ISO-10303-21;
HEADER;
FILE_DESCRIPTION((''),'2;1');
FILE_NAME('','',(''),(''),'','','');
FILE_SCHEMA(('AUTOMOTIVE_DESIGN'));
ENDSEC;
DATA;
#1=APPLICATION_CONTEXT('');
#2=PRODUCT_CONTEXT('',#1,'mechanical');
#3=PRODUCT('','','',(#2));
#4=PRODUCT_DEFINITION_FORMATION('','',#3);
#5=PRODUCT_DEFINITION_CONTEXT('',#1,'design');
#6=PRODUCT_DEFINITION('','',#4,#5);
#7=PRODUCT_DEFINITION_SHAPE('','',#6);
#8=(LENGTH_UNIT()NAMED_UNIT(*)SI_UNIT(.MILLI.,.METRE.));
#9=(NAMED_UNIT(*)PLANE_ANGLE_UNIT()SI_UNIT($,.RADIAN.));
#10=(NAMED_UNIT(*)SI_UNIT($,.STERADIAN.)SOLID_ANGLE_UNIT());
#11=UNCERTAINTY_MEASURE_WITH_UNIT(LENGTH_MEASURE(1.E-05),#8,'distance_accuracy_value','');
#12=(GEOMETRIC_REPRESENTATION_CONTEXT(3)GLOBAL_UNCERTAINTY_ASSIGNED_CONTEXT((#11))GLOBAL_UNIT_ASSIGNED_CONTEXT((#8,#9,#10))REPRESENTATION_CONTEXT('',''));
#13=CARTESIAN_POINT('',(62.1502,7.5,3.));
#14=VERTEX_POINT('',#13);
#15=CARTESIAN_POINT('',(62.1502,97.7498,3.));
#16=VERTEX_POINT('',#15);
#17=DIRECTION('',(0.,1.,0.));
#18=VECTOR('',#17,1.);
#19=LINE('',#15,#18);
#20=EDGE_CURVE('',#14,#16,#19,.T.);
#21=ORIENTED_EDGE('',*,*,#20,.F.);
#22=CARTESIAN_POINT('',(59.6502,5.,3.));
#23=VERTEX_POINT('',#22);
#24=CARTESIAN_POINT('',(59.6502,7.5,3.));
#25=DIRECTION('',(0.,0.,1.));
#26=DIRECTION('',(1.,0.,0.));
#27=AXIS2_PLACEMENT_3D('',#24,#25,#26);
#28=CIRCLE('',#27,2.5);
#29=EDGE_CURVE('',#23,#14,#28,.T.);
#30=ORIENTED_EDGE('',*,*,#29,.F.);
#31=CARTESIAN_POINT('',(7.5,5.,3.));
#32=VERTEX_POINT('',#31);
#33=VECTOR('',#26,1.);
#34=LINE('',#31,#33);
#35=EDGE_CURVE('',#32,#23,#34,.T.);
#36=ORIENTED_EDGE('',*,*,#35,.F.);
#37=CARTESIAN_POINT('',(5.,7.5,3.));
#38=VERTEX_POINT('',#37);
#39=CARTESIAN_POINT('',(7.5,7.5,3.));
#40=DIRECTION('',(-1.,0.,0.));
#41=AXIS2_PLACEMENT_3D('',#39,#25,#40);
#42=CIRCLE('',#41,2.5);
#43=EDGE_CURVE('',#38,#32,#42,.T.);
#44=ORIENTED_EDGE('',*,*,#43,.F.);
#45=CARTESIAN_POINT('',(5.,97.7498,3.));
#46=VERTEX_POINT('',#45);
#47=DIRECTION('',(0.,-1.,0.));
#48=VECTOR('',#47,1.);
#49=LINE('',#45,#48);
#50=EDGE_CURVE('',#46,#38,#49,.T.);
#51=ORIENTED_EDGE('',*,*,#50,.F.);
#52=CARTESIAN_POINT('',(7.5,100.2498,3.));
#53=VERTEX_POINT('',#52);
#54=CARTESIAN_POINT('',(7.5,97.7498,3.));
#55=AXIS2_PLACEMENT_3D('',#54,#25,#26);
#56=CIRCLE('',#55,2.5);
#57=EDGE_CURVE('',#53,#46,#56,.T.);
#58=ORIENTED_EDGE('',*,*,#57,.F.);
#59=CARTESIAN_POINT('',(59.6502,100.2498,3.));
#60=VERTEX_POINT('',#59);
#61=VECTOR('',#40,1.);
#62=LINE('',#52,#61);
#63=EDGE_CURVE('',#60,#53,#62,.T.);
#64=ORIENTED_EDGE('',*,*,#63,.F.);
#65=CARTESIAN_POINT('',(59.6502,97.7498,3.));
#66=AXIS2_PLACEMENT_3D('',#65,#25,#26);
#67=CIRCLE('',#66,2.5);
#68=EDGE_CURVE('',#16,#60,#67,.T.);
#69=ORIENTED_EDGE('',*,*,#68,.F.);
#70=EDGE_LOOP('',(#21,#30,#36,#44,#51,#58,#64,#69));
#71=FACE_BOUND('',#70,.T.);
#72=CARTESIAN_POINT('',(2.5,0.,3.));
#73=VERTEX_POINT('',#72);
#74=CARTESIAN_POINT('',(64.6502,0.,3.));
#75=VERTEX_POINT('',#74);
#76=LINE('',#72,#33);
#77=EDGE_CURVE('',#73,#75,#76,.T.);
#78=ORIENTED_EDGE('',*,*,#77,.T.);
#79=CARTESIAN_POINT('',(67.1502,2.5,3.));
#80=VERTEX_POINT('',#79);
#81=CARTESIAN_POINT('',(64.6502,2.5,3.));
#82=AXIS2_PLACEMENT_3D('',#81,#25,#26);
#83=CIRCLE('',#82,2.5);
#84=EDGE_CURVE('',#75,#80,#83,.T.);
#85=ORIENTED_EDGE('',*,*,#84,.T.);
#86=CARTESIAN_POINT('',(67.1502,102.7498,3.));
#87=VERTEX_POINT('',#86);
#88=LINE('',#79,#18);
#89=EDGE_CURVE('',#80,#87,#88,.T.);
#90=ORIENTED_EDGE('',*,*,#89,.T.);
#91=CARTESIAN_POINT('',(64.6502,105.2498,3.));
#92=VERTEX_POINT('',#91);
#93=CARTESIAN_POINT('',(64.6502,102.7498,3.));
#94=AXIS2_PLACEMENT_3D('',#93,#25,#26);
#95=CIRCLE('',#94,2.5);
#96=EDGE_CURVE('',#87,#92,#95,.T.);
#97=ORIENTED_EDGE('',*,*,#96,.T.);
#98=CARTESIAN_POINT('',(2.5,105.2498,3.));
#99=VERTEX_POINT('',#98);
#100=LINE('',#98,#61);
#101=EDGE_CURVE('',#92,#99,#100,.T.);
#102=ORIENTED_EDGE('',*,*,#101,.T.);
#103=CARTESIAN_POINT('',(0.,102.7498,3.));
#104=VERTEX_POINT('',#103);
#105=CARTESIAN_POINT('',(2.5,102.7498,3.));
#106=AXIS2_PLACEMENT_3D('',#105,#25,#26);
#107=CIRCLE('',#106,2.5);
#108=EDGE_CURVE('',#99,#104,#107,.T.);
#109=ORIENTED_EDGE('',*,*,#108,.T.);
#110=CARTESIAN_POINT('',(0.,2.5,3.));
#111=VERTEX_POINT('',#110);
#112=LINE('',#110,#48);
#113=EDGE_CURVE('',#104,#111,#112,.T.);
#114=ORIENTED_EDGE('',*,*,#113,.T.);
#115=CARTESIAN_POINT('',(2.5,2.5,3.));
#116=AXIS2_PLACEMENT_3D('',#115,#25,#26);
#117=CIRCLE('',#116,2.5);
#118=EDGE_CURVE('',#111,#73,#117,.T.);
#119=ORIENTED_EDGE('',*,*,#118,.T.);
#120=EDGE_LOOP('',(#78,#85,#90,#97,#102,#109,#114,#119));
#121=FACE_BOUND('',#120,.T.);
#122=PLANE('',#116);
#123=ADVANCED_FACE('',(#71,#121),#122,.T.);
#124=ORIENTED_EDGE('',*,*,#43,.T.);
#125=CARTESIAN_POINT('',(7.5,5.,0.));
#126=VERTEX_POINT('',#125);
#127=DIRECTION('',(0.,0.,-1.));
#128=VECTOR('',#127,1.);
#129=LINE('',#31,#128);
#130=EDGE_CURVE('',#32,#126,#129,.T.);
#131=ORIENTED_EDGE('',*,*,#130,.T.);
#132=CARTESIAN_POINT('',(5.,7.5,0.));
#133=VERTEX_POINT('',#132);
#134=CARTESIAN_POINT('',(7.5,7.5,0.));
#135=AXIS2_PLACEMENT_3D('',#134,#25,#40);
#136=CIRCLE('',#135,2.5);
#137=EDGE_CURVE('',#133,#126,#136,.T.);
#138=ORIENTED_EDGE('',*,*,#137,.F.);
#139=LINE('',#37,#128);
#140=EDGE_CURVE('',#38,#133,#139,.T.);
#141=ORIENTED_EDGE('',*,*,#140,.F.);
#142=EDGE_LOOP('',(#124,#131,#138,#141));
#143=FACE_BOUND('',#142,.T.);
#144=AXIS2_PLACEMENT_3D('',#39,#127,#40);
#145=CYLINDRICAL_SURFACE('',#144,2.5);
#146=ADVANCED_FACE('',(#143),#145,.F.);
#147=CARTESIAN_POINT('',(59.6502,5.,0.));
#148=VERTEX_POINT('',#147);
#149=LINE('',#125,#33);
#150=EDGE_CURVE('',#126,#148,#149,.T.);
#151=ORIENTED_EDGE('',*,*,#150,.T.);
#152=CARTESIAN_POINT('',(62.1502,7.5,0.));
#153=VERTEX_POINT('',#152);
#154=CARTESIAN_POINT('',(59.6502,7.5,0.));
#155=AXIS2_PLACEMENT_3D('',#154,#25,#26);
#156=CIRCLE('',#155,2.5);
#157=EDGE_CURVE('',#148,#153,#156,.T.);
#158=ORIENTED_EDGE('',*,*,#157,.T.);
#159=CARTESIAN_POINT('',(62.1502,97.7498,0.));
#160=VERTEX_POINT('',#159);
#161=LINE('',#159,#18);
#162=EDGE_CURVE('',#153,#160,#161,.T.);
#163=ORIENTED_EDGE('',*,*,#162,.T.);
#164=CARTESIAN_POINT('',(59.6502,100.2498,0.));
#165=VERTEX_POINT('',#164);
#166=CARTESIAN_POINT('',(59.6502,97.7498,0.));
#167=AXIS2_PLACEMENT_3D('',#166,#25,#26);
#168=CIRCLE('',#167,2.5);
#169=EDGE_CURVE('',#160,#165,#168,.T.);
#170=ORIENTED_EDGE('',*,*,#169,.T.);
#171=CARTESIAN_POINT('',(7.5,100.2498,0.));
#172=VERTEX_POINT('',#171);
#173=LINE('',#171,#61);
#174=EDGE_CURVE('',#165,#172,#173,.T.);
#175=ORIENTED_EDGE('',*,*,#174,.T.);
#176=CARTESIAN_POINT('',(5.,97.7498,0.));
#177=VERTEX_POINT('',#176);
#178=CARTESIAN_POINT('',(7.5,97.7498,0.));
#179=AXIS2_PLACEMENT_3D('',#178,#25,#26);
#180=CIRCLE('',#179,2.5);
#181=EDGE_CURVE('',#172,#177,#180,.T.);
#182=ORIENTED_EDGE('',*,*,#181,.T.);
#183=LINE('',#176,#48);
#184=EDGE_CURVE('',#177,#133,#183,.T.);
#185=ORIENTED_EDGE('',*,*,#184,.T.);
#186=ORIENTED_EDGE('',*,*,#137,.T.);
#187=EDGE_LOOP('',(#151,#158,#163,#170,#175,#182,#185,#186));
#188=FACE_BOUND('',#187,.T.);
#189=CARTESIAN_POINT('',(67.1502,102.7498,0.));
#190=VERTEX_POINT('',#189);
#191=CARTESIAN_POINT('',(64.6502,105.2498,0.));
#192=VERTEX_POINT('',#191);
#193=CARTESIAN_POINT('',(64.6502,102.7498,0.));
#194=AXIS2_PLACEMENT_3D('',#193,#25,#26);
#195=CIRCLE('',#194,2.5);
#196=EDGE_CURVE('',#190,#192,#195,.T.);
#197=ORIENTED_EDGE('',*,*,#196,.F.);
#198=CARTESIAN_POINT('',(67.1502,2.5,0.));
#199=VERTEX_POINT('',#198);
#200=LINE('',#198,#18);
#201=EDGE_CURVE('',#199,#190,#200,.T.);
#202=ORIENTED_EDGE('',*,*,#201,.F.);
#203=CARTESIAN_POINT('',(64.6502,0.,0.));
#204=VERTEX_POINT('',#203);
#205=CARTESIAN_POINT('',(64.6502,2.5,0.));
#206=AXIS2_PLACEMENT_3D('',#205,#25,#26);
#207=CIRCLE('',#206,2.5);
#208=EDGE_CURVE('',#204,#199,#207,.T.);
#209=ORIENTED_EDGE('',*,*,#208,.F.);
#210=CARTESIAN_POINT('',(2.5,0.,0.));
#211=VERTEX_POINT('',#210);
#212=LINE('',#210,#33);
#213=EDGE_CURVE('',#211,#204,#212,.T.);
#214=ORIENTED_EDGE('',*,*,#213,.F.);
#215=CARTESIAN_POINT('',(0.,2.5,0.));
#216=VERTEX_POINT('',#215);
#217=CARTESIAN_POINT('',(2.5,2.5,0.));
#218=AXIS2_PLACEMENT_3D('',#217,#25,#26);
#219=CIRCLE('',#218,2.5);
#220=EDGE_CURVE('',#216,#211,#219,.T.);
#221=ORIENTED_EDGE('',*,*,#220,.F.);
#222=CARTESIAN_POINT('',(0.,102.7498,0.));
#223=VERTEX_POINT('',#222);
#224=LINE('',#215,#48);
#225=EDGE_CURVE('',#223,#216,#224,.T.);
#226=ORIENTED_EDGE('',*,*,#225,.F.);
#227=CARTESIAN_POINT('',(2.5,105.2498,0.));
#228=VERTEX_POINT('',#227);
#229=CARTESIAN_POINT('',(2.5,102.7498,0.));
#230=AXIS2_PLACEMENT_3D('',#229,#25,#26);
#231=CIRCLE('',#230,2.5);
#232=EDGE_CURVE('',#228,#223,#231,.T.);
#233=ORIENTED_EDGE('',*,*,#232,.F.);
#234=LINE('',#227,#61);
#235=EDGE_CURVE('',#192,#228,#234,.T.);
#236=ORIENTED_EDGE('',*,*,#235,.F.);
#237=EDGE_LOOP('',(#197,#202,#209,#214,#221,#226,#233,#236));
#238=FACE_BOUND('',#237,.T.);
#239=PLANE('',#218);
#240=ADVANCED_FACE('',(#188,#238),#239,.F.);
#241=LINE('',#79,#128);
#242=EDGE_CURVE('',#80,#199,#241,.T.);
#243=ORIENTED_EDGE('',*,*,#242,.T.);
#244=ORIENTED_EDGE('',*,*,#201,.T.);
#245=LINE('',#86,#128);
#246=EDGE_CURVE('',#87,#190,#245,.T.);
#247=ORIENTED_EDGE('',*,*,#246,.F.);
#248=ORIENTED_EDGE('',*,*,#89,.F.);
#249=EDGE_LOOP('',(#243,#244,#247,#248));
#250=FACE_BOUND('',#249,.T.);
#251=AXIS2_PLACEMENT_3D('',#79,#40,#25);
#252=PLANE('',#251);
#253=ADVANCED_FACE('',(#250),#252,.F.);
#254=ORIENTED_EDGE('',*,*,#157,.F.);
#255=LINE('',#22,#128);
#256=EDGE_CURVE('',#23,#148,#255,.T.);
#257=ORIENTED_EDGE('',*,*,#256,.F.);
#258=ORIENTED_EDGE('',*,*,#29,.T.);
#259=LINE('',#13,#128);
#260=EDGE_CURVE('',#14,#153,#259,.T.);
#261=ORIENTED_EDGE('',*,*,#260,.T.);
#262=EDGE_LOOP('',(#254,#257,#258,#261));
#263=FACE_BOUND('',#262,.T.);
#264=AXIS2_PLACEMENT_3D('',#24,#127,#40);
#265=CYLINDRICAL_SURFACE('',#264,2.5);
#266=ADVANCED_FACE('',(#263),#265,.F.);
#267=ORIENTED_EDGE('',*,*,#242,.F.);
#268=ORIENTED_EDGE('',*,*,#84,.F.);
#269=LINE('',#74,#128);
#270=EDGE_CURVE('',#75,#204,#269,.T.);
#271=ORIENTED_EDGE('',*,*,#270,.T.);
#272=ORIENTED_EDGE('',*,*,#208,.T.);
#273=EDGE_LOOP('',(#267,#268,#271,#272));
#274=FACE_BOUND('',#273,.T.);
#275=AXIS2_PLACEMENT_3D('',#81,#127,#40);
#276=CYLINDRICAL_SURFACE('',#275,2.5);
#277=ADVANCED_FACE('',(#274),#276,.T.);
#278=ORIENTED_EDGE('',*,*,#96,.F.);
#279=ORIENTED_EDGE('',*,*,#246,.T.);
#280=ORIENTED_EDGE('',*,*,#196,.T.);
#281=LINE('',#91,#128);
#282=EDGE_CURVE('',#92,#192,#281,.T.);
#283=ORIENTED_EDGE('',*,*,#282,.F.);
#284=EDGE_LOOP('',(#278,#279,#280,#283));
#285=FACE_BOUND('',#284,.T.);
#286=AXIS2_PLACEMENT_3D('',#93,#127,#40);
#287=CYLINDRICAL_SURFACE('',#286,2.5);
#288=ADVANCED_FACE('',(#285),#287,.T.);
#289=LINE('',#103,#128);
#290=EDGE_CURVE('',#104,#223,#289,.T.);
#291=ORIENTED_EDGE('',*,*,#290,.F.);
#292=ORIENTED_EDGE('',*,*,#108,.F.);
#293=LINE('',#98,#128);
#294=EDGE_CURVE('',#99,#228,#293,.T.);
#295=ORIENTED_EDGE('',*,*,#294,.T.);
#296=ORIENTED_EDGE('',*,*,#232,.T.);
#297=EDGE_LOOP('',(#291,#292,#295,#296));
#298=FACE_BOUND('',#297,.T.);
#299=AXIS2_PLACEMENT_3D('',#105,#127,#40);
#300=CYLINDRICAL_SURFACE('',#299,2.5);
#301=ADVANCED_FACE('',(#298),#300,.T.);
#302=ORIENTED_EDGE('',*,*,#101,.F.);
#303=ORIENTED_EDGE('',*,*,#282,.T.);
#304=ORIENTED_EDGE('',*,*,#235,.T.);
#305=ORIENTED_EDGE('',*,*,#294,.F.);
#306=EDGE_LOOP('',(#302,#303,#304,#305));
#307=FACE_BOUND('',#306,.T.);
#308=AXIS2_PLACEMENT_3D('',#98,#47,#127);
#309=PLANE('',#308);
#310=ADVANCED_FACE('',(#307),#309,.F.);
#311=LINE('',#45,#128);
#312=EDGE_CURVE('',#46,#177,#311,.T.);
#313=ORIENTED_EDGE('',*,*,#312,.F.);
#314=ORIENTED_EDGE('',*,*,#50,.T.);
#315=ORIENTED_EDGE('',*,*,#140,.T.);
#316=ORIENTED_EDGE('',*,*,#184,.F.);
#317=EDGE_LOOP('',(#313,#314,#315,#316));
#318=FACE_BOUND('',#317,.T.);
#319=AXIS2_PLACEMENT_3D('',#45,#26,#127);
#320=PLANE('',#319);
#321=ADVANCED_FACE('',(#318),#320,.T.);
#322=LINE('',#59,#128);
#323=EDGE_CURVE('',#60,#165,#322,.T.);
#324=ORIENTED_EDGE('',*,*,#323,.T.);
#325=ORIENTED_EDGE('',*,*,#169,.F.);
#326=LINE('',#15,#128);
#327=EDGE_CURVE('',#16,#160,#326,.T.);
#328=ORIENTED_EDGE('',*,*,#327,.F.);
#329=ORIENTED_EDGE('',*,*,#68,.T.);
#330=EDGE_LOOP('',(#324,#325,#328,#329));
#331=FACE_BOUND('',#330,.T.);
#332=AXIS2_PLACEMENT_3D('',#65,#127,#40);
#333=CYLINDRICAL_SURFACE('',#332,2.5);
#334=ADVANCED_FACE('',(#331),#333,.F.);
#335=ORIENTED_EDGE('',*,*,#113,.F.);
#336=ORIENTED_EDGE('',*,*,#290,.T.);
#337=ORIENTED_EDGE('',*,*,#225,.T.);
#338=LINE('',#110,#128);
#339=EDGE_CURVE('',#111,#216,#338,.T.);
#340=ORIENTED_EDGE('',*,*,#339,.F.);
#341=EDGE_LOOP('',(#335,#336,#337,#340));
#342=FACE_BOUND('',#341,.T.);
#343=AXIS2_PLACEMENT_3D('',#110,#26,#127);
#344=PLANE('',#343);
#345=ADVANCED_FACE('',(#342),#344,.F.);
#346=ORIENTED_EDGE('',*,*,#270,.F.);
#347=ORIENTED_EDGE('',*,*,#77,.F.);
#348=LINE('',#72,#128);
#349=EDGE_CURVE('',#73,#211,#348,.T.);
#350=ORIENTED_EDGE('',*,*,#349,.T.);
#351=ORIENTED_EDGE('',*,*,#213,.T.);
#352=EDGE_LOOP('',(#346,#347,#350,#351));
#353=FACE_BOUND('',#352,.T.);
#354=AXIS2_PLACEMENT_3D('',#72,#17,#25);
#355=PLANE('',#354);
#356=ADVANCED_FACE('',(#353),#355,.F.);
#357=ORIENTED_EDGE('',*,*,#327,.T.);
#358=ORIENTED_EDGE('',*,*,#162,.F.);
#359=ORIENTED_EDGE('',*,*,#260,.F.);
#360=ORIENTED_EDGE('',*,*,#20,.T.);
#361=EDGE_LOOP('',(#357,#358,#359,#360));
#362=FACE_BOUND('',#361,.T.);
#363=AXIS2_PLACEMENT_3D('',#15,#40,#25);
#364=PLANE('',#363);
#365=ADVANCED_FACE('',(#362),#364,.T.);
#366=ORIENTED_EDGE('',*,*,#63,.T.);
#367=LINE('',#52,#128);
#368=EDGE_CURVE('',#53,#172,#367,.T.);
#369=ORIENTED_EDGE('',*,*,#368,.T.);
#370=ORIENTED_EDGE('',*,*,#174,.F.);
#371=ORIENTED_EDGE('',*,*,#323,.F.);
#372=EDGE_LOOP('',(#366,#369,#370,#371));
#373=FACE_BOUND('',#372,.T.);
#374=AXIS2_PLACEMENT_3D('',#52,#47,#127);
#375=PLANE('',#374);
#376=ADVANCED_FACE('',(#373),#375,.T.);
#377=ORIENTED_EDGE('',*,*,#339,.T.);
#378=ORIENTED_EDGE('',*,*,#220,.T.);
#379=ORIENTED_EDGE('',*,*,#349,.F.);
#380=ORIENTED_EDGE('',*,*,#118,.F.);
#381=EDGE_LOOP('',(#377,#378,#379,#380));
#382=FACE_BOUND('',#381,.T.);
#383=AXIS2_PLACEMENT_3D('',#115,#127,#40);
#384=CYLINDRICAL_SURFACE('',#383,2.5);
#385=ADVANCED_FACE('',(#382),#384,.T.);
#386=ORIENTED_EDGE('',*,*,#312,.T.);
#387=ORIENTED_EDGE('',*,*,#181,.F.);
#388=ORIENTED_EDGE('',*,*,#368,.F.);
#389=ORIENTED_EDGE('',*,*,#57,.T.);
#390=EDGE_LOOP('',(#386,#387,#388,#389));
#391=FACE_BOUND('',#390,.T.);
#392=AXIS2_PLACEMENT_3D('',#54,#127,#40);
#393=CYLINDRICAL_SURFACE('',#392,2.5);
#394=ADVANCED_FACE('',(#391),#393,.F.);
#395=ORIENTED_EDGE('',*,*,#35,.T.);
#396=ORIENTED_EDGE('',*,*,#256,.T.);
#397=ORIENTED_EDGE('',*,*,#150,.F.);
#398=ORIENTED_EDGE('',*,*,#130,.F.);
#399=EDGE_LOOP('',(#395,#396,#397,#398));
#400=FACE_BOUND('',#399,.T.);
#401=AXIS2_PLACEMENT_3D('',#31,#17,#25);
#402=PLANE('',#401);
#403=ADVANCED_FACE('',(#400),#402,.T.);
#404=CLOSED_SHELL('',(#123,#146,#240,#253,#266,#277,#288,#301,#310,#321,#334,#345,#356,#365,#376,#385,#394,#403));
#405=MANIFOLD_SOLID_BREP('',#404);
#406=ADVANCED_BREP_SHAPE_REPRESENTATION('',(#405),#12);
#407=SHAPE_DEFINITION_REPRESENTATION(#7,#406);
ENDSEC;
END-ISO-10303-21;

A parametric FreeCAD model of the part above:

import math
import FreeCAD as App
import Part
import Sketcher
Q = App.Units.Quantity

doc = App.newDocument("Part")
params = doc.addObject("Spreadsheet::Sheet", "Params")
for row, (alias, value) in enumerate([
    ("sketch1_radius", "2.5 mm"),
    ("pad1_length", "3 mm"),
], start=1):
    params.set(f"A{row}", alias)
    params.set(f"B{row}", "=" + value)
    params.setAlias(f"B{row}", alias)

body = doc.addObject("PartDesign::Body", "Body")

# Sketch on XY plane
sketch1 = body.newObject("Sketcher::SketchObject", "Sketch")
sketch1.AttachmentSupport = (doc.getObject("XY_Plane"), [""])
sketch1.MapMode = "FlatFace"
sketch1.addGeometry(Part.LineSegment(App.Vector(2.5, 0, 0), App.Vector(64.7, 0, 0)), False)
sketch1.addGeometry(Part.ArcOfCircle(Part.Circle(App.Vector(64.7, 2.5, 0), App.Vector(0, 0, 1), 2.5), math.radians(-90), math.radians(0)), False)
sketch1.addGeometry(Part.LineSegment(App.Vector(67.2, 2.5, 0), App.Vector(67.2, 102.7, 0)), False)
sketch1.addGeometry(Part.ArcOfCircle(Part.Circle(App.Vector(64.7, 102.7, 0), App.Vector(0, 0, 1), 2.5), math.radians(0), math.radians(90)), False)
sketch1.addGeometry(Part.LineSegment(App.Vector(64.7, 105.2, 0), App.Vector(2.5, 105.2, 0)), False)
sketch1.addGeometry(Part.ArcOfCircle(Part.Circle(App.Vector(2.5, 102.7, 0), App.Vector(0, 0, 1), 2.5), math.radians(90), math.radians(180)), False)
sketch1.addGeometry(Part.LineSegment(App.Vector(0, 102.7, 0), App.Vector(0, 2.5, 0)), False)
sketch1.addGeometry(Part.ArcOfCircle(Part.Circle(App.Vector(2.5, 2.5, 0), App.Vector(0, 0, 1), 2.5), math.radians(180), math.radians(270)), False)
sketch1.addGeometry(Part.ArcOfCircle(Part.Circle(App.Vector(7.5, 97.7, 0), App.Vector(0, 0, 1), 2.5), math.radians(90), math.radians(180)), False)
sketch1.addGeometry(Part.LineSegment(App.Vector(7.5, 100.2, 0), App.Vector(59.7, 100.2, 0)), False)
sketch1.addGeometry(Part.ArcOfCircle(Part.Circle(App.Vector(59.7, 97.7, 0), App.Vector(0, 0, 1), 2.5), math.radians(0), math.radians(90)), False)
sketch1.addGeometry(Part.LineSegment(App.Vector(62.2, 97.7, 0), App.Vector(62.2, 7.5, 0)), False)
sketch1.addGeometry(Part.ArcOfCircle(Part.Circle(App.Vector(59.7, 7.5, 0), App.Vector(0, 0, 1), 2.5), math.radians(-90), math.radians(0)), False)
sketch1.addGeometry(Part.LineSegment(App.Vector(59.7, 5, 0), App.Vector(7.5, 5, 0)), False)
sketch1.addGeometry(Part.ArcOfCircle(Part.Circle(App.Vector(7.5, 7.5, 0), App.Vector(0, 0, 1), 2.5), math.radians(180), math.radians(270)), False)
sketch1.addGeometry(Part.LineSegment(App.Vector(5, 7.5, 0), App.Vector(5, 97.7, 0)), False)
sketch1.addConstraint(Sketcher.Constraint("Tangent", 0, 2, 1, 1))
sketch1.addConstraint(Sketcher.Constraint("Tangent", 1, 2, 2, 1))
sketch1.addConstraint(Sketcher.Constraint("Tangent", 2, 2, 3, 1))
sketch1.addConstraint(Sketcher.Constraint("Tangent", 3, 2, 4, 1))
sketch1.addConstraint(Sketcher.Constraint("Tangent", 4, 2, 5, 1))
sketch1.addConstraint(Sketcher.Constraint("Tangent", 5, 2, 6, 1))
sketch1.addConstraint(Sketcher.Constraint("Tangent", 6, 2, 7, 1))
sketch1.addConstraint(Sketcher.Constraint("Tangent", 7, 2, 0, 1))
sketch1.addConstraint(Sketcher.Constraint("Tangent", 8, 1, 9, 1))
sketch1.addConstraint(Sketcher.Constraint("Tangent", 9, 2, 10, 2))
sketch1.addConstraint(Sketcher.Constraint("Tangent", 10, 1, 11, 1))
sketch1.addConstraint(Sketcher.Constraint("Tangent", 11, 2, 12, 2))
sketch1.addConstraint(Sketcher.Constraint("Tangent", 12, 1, 13, 1))
sketch1.addConstraint(Sketcher.Constraint("Tangent", 13, 2, 14, 2))
sketch1.addConstraint(Sketcher.Constraint("Tangent", 14, 1, 15, 1))
sketch1.addConstraint(Sketcher.Constraint("Tangent", 15, 2, 8, 2))
sketch1.addConstraint(Sketcher.Constraint("Horizontal", 0))
sketch1.addConstraint(Sketcher.Constraint("Vertical", 2))
sketch1.addConstraint(Sketcher.Constraint("Horizontal", 4))
sketch1.addConstraint(Sketcher.Constraint("Vertical", 6))
sketch1.addConstraint(Sketcher.Constraint("Horizontal", 9))
sketch1.addConstraint(Sketcher.Constraint("Vertical", 11))
sketch1.addConstraint(Sketcher.Constraint("Horizontal", 13))
sketch1.addConstraint(Sketcher.Constraint("Vertical", 15))
sketch1.addConstraint(Sketcher.Constraint("Equal", 1, 3))
sketch1.addConstraint(Sketcher.Constraint("Equal", 3, 5))
sketch1.addConstraint(Sketcher.Constraint("Equal", 5, 7))
sketch1.addConstraint(Sketcher.Constraint("Equal", 7, 8))
sketch1.addConstraint(Sketcher.Constraint("Equal", 8, 10))
sketch1.addConstraint(Sketcher.Constraint("Equal", 10, 12))
sketch1.addConstraint(Sketcher.Constraint("Equal", 12, 14))
sketch1.addConstraint(Sketcher.Constraint("PointOnObject", 0, 2, -1))
sketch1.addConstraint(Sketcher.Constraint("PointOnObject", 5, 2, -2))
sketch1.addConstraint(Sketcher.Constraint("Radius", 1, Q("2.5 mm")))
sketch1.addConstraint(Sketcher.Constraint("DistanceY", -1, 1, 12, 1, Q("5 mm")))
sketch1.addConstraint(Sketcher.Constraint("DistanceX", -1, 1, 14, 1, Q("5 mm")))
sketch1.addConstraint(Sketcher.Constraint("DistanceY", 8, 3, 5, 3, Q("5 mm")))
sketch1.addConstraint(Sketcher.Constraint("DistanceX", 10, 3, 3, 3, Q("5 mm")))
sketch1.addConstraint(Sketcher.Constraint("DistanceX", 0, 1, 0, 2, Q("62.1502 mm")))
sketch1.addConstraint(Sketcher.Constraint("DistanceY", 2, 1, 2, 2, Q("100.2498 mm")))
sketch1.setExpression("Constraints[33]", "Params.sketch1_radius")
pad1 = body.newObject("PartDesign::Pad", "Pad")
pad1.Profile = sketch1
pad1.setExpression("Length", "Params.pad1_length")

doc.recompute()
